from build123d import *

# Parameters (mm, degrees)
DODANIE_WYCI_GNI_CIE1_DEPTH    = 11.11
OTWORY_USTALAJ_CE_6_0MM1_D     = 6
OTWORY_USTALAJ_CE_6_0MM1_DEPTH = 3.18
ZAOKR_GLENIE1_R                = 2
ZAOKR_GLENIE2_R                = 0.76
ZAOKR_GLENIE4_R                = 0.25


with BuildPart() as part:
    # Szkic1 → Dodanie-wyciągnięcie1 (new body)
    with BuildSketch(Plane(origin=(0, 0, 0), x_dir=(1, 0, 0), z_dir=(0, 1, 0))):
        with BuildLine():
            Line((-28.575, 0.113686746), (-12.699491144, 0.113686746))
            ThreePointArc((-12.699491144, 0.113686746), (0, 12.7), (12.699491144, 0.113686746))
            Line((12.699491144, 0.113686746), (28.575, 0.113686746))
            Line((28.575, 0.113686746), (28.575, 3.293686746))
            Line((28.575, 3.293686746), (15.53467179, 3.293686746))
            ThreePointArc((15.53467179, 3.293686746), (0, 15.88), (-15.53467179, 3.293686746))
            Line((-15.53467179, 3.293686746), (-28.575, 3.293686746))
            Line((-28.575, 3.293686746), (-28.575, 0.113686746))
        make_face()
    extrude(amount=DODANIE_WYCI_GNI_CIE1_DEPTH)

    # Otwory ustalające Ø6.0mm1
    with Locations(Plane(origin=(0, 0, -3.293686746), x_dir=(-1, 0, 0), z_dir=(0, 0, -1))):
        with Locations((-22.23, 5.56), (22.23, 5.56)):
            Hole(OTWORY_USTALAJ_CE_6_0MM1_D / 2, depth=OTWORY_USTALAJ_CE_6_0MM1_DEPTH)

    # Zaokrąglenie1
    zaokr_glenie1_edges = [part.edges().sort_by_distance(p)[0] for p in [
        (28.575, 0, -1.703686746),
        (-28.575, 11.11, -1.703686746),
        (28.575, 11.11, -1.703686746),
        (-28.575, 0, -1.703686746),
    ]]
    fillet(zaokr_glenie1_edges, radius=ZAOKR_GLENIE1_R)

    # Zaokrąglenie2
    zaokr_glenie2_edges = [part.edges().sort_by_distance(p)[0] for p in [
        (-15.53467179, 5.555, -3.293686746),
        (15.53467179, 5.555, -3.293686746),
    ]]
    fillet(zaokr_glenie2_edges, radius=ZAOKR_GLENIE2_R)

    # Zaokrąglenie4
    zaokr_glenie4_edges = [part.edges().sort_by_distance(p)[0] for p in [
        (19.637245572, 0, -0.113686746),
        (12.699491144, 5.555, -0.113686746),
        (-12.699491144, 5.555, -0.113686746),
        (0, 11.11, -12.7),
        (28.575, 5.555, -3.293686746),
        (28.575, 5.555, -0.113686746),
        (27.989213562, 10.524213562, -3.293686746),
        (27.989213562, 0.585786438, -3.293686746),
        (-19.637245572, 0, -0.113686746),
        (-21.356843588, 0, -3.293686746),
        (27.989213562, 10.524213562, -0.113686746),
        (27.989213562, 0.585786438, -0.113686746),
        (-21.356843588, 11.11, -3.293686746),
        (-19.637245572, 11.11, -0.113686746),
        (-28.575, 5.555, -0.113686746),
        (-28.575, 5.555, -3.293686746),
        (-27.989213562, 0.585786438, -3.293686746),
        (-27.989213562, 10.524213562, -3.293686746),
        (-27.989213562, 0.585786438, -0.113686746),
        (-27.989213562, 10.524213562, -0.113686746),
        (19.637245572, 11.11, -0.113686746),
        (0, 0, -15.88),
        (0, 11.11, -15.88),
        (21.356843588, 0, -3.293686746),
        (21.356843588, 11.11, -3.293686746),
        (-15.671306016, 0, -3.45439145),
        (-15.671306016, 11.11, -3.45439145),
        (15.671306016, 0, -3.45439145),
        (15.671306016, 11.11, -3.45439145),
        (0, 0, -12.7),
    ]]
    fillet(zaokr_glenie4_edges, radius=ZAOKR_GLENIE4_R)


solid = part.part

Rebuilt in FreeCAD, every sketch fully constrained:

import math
import FreeCAD as App
import Part
import Sketcher

V = App.Vector
Q = App.Units.Quantity


def edges_at(feature, points):
    """Names of the edges that pass closest to the given points."""
    edges = feature.Shape.Edges
    near = lambda p: min(range(len(edges)), key=lambda i: edges[i].distToShape(Part.Vertex(*p))[0])
    return sorted({f"Edge{near(p) + 1}" for p in points})

doc = App.newDocument("Part")
body = doc.addObject("PartDesign::Body", "Body")

sketch1 = body.newObject("Sketcher::SketchObject", "Sketch")
sketch1.AttachmentSupport = (doc.getObject("XZ_Plane"), [""])
sketch1.MapMode = "FlatFace"
sketch1.addGeometry([
    Part.LineSegment(V(-28.6, -0.1, 0), V(-12.7, -0.1, 0)),
    Part.ArcOfCircle(Part.Circle(V(0, 0, 0), V(0, 0, 1), 12.7), math.radians(-179), math.radians(-1)),
    Part.LineSegment(V(12.7, -0.1, 0), V(28.6, -0.1, 0)),
    Part.LineSegment(V(28.6, -0.1, 0), V(28.6, -3.3, 0)),
    Part.LineSegment(V(28.6, -3.3, 0), V(15.5, -3.3, 0)),
    Part.ArcOfCircle(Part.Circle(V(0, 0, 0), V(0, 0, 1), 15.9), math.radians(-168), math.radians(-12)),
    Part.LineSegment(V(-15.5, -3.3, 0), V(-28.6, -3.3, 0)),
    Part.LineSegment(V(-28.6, -3.3, 0), V(-28.6, -0.1, 0)),
], False)
sketch1.addConstraint([
    Sketcher.Constraint("Coincident", 0, 2, 1, 1),
    Sketcher.Constraint("Coincident", 1, 2, 2, 1),
    Sketcher.Constraint("Coincident", 2, 2, 3, 1),
    Sketcher.Constraint("Coincident", 3, 2, 4, 1),
    Sketcher.Constraint("Coincident", 4, 2, 5, 2),
    Sketcher.Constraint("Coincident", 5, 1, 6, 1),
    Sketcher.Constraint("Coincident", 6, 2, 7, 1),
    Sketcher.Constraint("Coincident", 7, 2, 0, 1),
    Sketcher.Constraint("Horizontal", 0),
    Sketcher.Constraint("Horizontal", 2),
    Sketcher.Constraint("Vertical", 3),
    Sketcher.Constraint("Horizontal", 4),
    Sketcher.Constraint("Horizontal", 6),
    Sketcher.Constraint("Vertical", 7),
    Sketcher.Constraint("Coincident", 1, 3, -1, 1),
    Sketcher.Constraint("Coincident", 5, 3, -1, 1),
    Sketcher.Constraint("Symmetric", 3, 2, 6, 2, -2),
    Sketcher.Constraint("Horizontal", 0, 2, 1, 2),
    Sketcher.Constraint("Radius", 1, Q("12.7 mm")),
    Sketcher.Constraint("Radius", 5, Q("15.88 mm")),
    Sketcher.Constraint("DistanceY", 3, 2, 3, 1, Q("3.18 mm")),
    Sketcher.Constraint("DistanceX", -1, 1, 2, 2, Q("28.575 mm")),
    Sketcher.Constraint("DistanceX", 4, 2, 4, 1, Q("13.040328 mm")),
])
pad1 = body.newObject("PartDesign::Pad", "Pad")
pad1.Profile = sketch1
pad1.Length = 11.11
pad1.Reversed = True

sketch2 = body.newObject("Sketcher::SketchObject", "Sketch001")
sketch2.AttachmentSupport = (doc.getObject("XY_Plane"), [""])
sketch2.MapMode = "FlatFace"
sketch2.AttachmentOffset = App.Placement(V(0, 0, -3.293687), App.Rotation())
sketch2.addGeometry([
    Part.Circle(V(22.2, 5.6, 0), V(0, 0, 1), 3),
    Part.Circle(V(-22.2, 5.6, 0), V(0, 0, 1), 3),
], False)
sketch2.addConstraint([
    Sketcher.Constraint("Equal", 0, 1),
    Sketcher.Constraint("Symmetric", 0, 3, 1, 3, -2),
    Sketcher.Constraint("Diameter", 0, Q("6 mm")),
    Sketcher.Constraint("DistanceX", -1, 1, 0, 3, Q("22.23 mm")),
    Sketcher.Constraint("DistanceY", -1, 1, 0, 3, Q("5.56 mm")),
])
doc.recompute()
hole = body.newObject("PartDesign::Hole", "Hole")
hole.Profile = sketch2
hole.ThreadType = "None"
hole.Diameter = 6
hole.DepthType = "Dimension"
hole.Depth = 3.18
hole.DrillPoint = "Flat"
hole.Reversed = True
doc.recompute()

fillet = body.newObject("PartDesign::Fillet", "Fillet")
fillet.Base = (hole, edges_at(hole, [
    (28.575, 0, -1.704),
    (-28.575, 11.11, -1.704),
    (28.575, 11.11, -1.704),
    (-28.575, 0, -1.704),
]))
fillet.Radius = 2
doc.recompute()

fillet2 = body.newObject("PartDesign::Fillet", "Fillet001")
fillet2.Base = (fillet, edges_at(fillet, [(-15.535, 5.555, -3.294), (15.535, 5.555, -3.294)]))
fillet2.Radius = 0.76
doc.recompute()

fillet3 = body.newObject("PartDesign::Fillet", "Fillet002")
fillet3.Base = (fillet2, edges_at(fillet2, [
    (19.637, 0, -0.114),
    (12.699, 5.555, -0.114),
    (-12.699, 5.555, -0.114),
    (0, 11.11, -12.7),
    (28.575, 5.555, -3.294),
    (28.575, 5.555, -0.114),
    (27.989, 10.524, -3.294),
    (27.989, 0.586, -3.294),
    (-19.637, 0, -0.114),
    (-21.357, 0, -3.294),
    (27.989, 10.524, -0.114),
    (27.989, 0.586, -0.114),
    (-21.357, 11.11, -3.294),
    (-19.637, 11.11, -0.114),
    (-28.575, 5.555, -0.114),
    (-28.575, 5.555, -3.294),
    (-27.989, 0.586, -3.294),
    (-27.989, 10.524, -3.294),
    (-27.989, 0.586, -0.114),
    (-27.989, 10.524, -0.114),
    (19.637, 11.11, -0.114),
    (0, 0, -15.88),
    (0, 11.11, -15.88),
    (21.357, 0, -3.294),
    (21.357, 11.11, -3.294),
    (-15.671, 0, -3.454),
    (-15.671, 11.11, -3.454),
    (15.671, 0, -3.454),
    (15.671, 11.11, -3.454),
    (0, 0, -12.7),
]))
fillet3.Radius = 0.25

doc.recompute()
